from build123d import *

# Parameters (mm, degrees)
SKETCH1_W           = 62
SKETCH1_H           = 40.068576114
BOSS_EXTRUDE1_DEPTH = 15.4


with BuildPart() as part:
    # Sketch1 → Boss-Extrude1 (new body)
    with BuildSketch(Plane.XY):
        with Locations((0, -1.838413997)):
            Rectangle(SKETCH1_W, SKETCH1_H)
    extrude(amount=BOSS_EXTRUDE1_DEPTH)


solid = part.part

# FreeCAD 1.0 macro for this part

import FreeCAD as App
import Part
import Sketcher

V = App.Vector
Q = App.Units.Quantity

doc = App.newDocument("Part")
body = doc.addObject("PartDesign::Body", "Body")

# Sketch on XY plane
sketch1 = body.newObject("Sketcher::SketchObject", "Sketch")
sketch1.AttachmentSupport = (doc.getObject("XY_Plane"), [""])
sketch1.MapMode = "FlatFace"
sketch1.addGeometry([
    Part.LineSegment(V(-31, 18, 0), V(-31, -22, 0)),
    Part.LineSegment(V(-31, -22, 0), V(31, -22, 0)),
    Part.LineSegment(V(31, -22, 0), V(31, 18, 0)),
    Part.LineSegment(V(31, 18, 0), V(-31, 18, 0)),
], False)
sketch1.addConstraint([
    Sketcher.Constraint("Coincident", 0, 2, 1, 1),
    Sketcher.Constraint("Coincident", 1, 2, 2, 1),
    Sketcher.Constraint("Coincident", 2, 2, 3, 1),
    Sketcher.Constraint("Coincident", 3, 2, 0, 1),
    Sketcher.Constraint("Vertical", 0),
    Sketcher.Constraint("Horizontal", 1),
    Sketcher.Constraint("Vertical", 2),
    Sketcher.Constraint("Horizontal", 3),
    Sketcher.Constraint("DistanceX", 1, 1, 1, 2, Q("62 mm")),
    Sketcher.Constraint("DistanceX", 0, 2, -1, 1, Q("31 mm")),
    Sketcher.Constraint("DistanceY", 0, 2, 0, 1, Q("40.068576 mm")),
    Sketcher.Constraint("DistanceY", 0, 2, -1, 1, Q("21.872702 mm")),
])
pad1 = body.newObject("PartDesign::Pad", "Pad")
pad1.Profile = sketch1
pad1.Length = 15.4

doc.recompute()
